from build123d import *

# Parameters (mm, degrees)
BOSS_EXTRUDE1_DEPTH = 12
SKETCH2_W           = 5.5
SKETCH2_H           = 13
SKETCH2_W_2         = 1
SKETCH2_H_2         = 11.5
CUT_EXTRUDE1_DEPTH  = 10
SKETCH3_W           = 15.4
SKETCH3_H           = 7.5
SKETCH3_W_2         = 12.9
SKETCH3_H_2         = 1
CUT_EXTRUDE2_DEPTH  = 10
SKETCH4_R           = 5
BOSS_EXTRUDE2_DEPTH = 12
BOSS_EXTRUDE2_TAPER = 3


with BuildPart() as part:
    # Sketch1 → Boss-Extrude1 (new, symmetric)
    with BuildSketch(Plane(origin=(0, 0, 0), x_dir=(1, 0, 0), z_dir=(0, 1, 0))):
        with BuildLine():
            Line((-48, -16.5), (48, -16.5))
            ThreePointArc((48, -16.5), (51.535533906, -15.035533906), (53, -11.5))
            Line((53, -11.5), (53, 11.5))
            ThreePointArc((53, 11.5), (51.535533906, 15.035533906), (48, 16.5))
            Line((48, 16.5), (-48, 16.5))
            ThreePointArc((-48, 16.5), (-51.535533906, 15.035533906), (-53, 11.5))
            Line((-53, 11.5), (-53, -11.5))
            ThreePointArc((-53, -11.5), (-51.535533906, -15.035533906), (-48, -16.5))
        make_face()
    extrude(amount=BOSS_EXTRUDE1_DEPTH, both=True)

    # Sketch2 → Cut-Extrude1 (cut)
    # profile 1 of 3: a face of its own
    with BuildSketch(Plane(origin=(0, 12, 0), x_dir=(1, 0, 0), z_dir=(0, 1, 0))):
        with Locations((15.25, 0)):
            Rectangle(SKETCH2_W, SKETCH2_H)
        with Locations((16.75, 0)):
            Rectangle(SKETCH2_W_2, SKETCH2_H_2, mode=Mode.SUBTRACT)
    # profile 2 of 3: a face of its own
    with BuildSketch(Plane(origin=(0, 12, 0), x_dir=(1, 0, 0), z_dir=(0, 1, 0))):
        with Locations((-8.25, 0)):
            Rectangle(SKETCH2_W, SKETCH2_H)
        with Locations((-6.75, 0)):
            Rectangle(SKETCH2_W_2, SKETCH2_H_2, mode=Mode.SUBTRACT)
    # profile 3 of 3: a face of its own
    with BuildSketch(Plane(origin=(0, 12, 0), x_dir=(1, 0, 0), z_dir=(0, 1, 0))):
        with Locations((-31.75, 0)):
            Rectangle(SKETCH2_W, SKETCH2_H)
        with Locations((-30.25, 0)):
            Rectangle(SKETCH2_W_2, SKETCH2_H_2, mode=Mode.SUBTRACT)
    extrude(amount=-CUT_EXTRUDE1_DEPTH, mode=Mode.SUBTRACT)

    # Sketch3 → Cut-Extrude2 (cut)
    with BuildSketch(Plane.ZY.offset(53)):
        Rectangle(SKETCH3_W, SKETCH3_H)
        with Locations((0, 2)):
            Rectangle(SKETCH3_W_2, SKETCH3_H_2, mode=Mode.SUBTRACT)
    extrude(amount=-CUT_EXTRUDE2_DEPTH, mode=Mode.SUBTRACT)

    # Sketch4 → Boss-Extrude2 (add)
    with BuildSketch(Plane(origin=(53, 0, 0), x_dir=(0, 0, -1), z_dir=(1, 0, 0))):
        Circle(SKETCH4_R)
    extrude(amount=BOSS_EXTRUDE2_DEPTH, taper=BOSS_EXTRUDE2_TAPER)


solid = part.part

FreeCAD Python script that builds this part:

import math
import FreeCAD as App
import Part
import Sketcher
Q = App.Units.Quantity


def add_polygon(sketch, points):
    """Adds a closed chain of lines whose ends are joined by coincident constraints."""
    first, n = sketch.GeometryCount, len(points)
    for a, b in zip(points, points[1:] + points[:1]):
        sketch.addGeometry(Part.LineSegment(App.Vector(*a, 0), App.Vector(*b, 0)), False)
    for i in range(n):
        sketch.addConstraint(Sketcher.Constraint("Coincident", first + i, 2, first + (i + 1) % n, 1))

doc = App.newDocument("Part")
body = doc.addObject("PartDesign::Body", "Body")

# Sketch on XZ plane
sketch1 = body.newObject("Sketcher::SketchObject", "Sketch")
sketch1.AttachmentSupport = (doc.getObject("XZ_Plane"), [""])
sketch1.MapMode = "FlatFace"
sketch1.addGeometry(Part.LineSegment(App.Vector(-48, 16.5, 0), App.Vector(48, 16.5, 0)), False)
sketch1.addGeometry(Part.ArcOfCircle(Part.Circle(App.Vector(48, 11.5, 0), App.Vector(0, 0, 1), 5), math.radians(0), math.radians(90)), False)
sketch1.addGeometry(Part.LineSegment(App.Vector(53, 11.5, 0), App.Vector(53, -11.5, 0)), False)
sketch1.addGeometry(Part.ArcOfCircle(Part.Circle(App.Vector(48, -11.5, 0), App.Vector(0, 0, 1), 5), math.radians(-90), math.radians(0)), False)
sketch1.addGeometry(Part.LineSegment(App.Vector(48, -16.5, 0), App.Vector(-48, -16.5, 0)), False)
sketch1.addGeometry(Part.ArcOfCircle(Part.Circle(App.Vector(-48, -11.5, 0), App.Vector(0, 0, 1), 5), math.radians(180), math.radians(270)), False)
sketch1.addGeometry(Part.LineSegment(App.Vector(-53, -11.5, 0), App.Vector(-53, 11.5, 0)), False)
sketch1.addGeometry(Part.ArcOfCircle(Part.Circle(App.Vector(-48, 11.5, 0), App.Vector(0, 0, 1), 5), math.radians(90), math.radians(180)), False)
sketch1.addConstraint(Sketcher.Constraint("Tangent", 0, 2, 1, 2))
sketch1.addConstraint(Sketcher.Constraint("Tangent", 1, 1, 2, 1))
sketch1.addConstraint(Sketcher.Constraint("Tangent", 2, 2, 3, 2))
sketch1.addConstraint(Sketcher.Constraint("Tangent", 3, 1, 4, 1))
sketch1.addConstraint(Sketcher.Constraint("Tangent", 4, 2, 5, 2))
sketch1.addConstraint(Sketcher.Constraint("Tangent", 5, 1, 6, 1))
sketch1.addConstraint(Sketcher.Constraint("Tangent", 6, 2, 7, 2))
sketch1.addConstraint(Sketcher.Constraint("Tangent", 7, 1, 0, 1))
sketch1.addConstraint(Sketcher.Constraint("Horizontal", 0))
sketch1.addConstraint(Sketcher.Constraint("Vertical", 2))
sketch1.addConstraint(Sketcher.Constraint("Horizontal", 4))
sketch1.addConstraint(Sketcher.Constraint("Vertical", 6))
sketch1.addConstraint(Sketcher.Constraint("Equal", 1, 3))
sketch1.addConstraint(Sketcher.Constraint("Equal", 3, 5))
sketch1.addConstraint(Sketcher.Constraint("Equal", 5, 7))
sketch1.addConstraint(Sketcher.Constraint("Symmetric", 1, 3, 5, 3, -1, 1))
sketch1.addConstraint(Sketcher.Constraint("Radius", 1, Q("5 mm")))
sketch1.addConstraint(Sketcher.Constraint("DistanceX", 0, 1, 0, 2, Q("96 mm")))
sketch1.addConstraint(Sketcher.Constraint("DistanceY", 2, 2, 2, 1, Q("23 mm")))
pad1 = body.newObject("PartDesign::Pad", "Pad")
pad1.Profile = sketch1
pad1.Length = 24
pad1.Midplane = True

# Sketch on XZ plane
sketch2 = body.newObject("Sketcher::SketchObject", "Sketch001")
sketch2.AttachmentSupport = (doc.getObject("XZ_Plane"), [""])
sketch2.MapMode = "FlatFace"
sketch2.AttachmentOffset = App.Placement(App.Vector(0, 0, -12), App.Rotation())
add_polygon(sketch2, [(12.5, -6.5), (12.5, 6.5), (18, 6.5), (18, -6.5)])  # lines 0-3
add_polygon(sketch2, [(17.25, 5.75), (16.25, 5.75), (16.25, -5.75), (17.25, -5.75)])  # lines 4-7
add_polygon(sketch2, [(-11, -6.5), (-11, 6.5), (-5.5, 6.5), (-5.5, -6.5)])  # lines 8-11
add_polygon(sketch2, [(-6.25, 5.75), (-7.25, 5.75), (-7.25, -5.75), (-6.25, -5.75)])  # lines 12-15
add_polygon(sketch2, [(-34.5, -6.5), (-34.5, 6.5), (-29, 6.5), (-29, -6.5)])  # lines 16-19
add_polygon(sketch2, [(-29.75, 5.75), (-30.75, 5.75), (-30.75, -5.75), (-29.75, -5.75)])  # lines 20-23
sketch2.addConstraint(Sketcher.Constraint("Vertical", 0))
sketch2.addConstraint(Sketcher.Constraint("Horizontal", 1))
sketch2.addConstraint(Sketcher.Constraint("Vertical", 2))
sketch2.addConstraint(Sketcher.Constraint("Horizontal", 3))
sketch2.addConstraint(Sketcher.Constraint("Horizontal", 4))
sketch2.addConstraint(Sketcher.Constraint("Vertical", 5))
sketch2.addConstraint(Sketcher.Constraint("Horizontal", 6))
sketch2.addConstraint(Sketcher.Constraint("Vertical", 7))
sketch2.addConstraint(Sketcher.Constraint("Vertical", 8))
sketch2.addConstraint(Sketcher.Constraint("Horizontal", 9))
sketch2.addConstraint(Sketcher.Constraint("Vertical", 10))
sketch2.addConstraint(Sketcher.Constraint("Horizontal", 11))
sketch2.addConstraint(Sketcher.Constraint("Horizontal", 12))
sketch2.addConstraint(Sketcher.Constraint("Vertical", 13))
sketch2.addConstraint(Sketcher.Constraint("Horizontal", 14))
sketch2.addConstraint(Sketcher.Constraint("Vertical", 15))
sketch2.addConstraint(Sketcher.Constraint("Vertical", 16))
sketch2.addConstraint(Sketcher.Constraint("Horizontal", 17))
sketch2.addConstraint(Sketcher.Constraint("Vertical", 18))
sketch2.addConstraint(Sketcher.Constraint("Horizontal", 19))
sketch2.addConstraint(Sketcher.Constraint("Horizontal", 20))
sketch2.addConstraint(Sketcher.Constraint("Vertical", 21))
sketch2.addConstraint(Sketcher.Constraint("Horizontal", 22))
sketch2.addConstraint(Sketcher.Constraint("Vertical", 23))
sketch2.addConstraint(Sketcher.Constraint("Horizontal", 1, 2, 8, 2))
sketch2.addConstraint(Sketcher.Constraint("Horizontal", 3, 2, 10, 2))
sketch2.addConstraint(Sketcher.Constraint("Horizontal", 7, 2, 12, 2))
sketch2.addConstraint(Sketcher.Constraint("Horizontal", 6, 2, 13, 2))
sketch2.addConstraint(Sketcher.Constraint("Horizontal", 9, 2, 16, 2))
sketch2.addConstraint(Sketcher.Constraint("Horizontal", 11, 2, 18, 2))
sketch2.addConstraint(Sketcher.Constraint("Horizontal", 15, 2, 20, 2))
sketch2.addConstraint(Sketcher.Constraint("Horizontal", 14, 2, 21, 2))
sketch2.addConstraint(Sketcher.Constraint("Equal", 3, 9))
sketch2.addConstraint(Sketcher.Constraint("Equal", 6, 12))
sketch2.addConstraint(Sketcher.Constraint("Equal", 11, 17))
sketch2.addConstraint(Sketcher.Constraint("Equal", 14, 20))
sketch2.addConstraint(Sketcher.Constraint("DistanceX", 4, 2, 4, 1, Q("1 mm")))
sketch2.addConstraint(Sketcher.Constraint("DistanceY", 0, 1, 0, 2, Q("13 mm")))
sketch2.addConstraint(Sketcher.Constraint("DistanceX", 1, 1, 1, 2, Q("5.5 mm")))
sketch2.addConstraint(Sketcher.Constraint("DistanceY", 5, 2, 5, 1, Q("11.5 mm")))
sketch2.addConstraint(Sketcher.Constraint("DistanceX", -1, 1, 1, 2, Q("18 mm")))
sketch2.addConstraint(Sketcher.Constraint("DistanceX", 8, 2, -1, 1, Q("11 mm")))
sketch2.addConstraint(Sketcher.Constraint("DistanceX", 17, 2, -1, 1, Q("29 mm")))
sketch2.addConstraint(Sketcher.Constraint("DistanceY", -1, 1, 0, 2, Q("6.5 mm")))
sketch2.addConstraint(Sketcher.Constraint("DistanceX", -1, 1, 4, 2, Q("16.25 mm")))
sketch2.addConstraint(Sketcher.Constraint("DistanceY", -1, 1, 4, 2, Q("5.75 mm")))
sketch2.addConstraint(Sketcher.Constraint("DistanceX", 12, 2, -1, 1, Q("7.25 mm")))
sketch2.addConstraint(Sketcher.Constraint("DistanceX", 20, 2, -1, 1, Q("30.75 mm")))
pocket1 = body.newObject("PartDesign::Pocket", "Pocket")
pocket1.Profile = sketch2
pocket1.Length = 10
pocket1.Reversed = True

# Sketch on YZ plane
sketch3 = body.newObject("Sketcher::SketchObject", "Sketch002")
sketch3.AttachmentSupport = (doc.getObject("YZ_Plane"), [""])
sketch3.MapMode = "FlatFace"
sketch3.AttachmentOffset = App.Placement(App.Vector(0, 0, -53), App.Rotation())
add_polygon(sketch3, [(3.75, -7.7), (-3.75, -7.7), (-3.75, 7.7), (3.75, 7.7)])  # lines 0-3
add_polygon(sketch3, [(1.5, 6.45), (1.5, -6.45), (2.5, -6.45), (2.5, 6.45)])  # lines 4-7
sketch3.addConstraint(Sketcher.Constraint("Horizontal", 0))
sketch3.addConstraint(Sketcher.Constraint("Vertical", 1))
sketch3.addConstraint(Sketcher.Constraint("Horizontal", 2))
sketch3.addConstraint(Sketcher.Constraint("Vertical", 3))
sketch3.addConstraint(Sketcher.Constraint("Vertical", 4))
sketch3.addConstraint(Sketcher.Constraint("Horizontal", 5))
sketch3.addConstraint(Sketcher.Constraint("Vertical", 6))
sketch3.addConstraint(Sketcher.Constraint("Horizontal", 7))
sketch3.addConstraint(Sketcher.Constraint("Symmetric", 0, 2, 2, 2, -1, 1))
sketch3.addConstraint(Sketcher.Constraint("DistanceX", 5, 1, 5, 2, Q("1 mm")))
sketch3.addConstraint(Sketcher.Constraint("DistanceX", 0, 2, 0, 1, Q("7.5 mm")))
sketch3.addConstraint(Sketcher.Constraint("DistanceY", 1, 1, 1, 2, Q("15.4 mm")))
sketch3.addConstraint(Sketcher.Constraint("DistanceY", 4, 2, 4, 1, Q("12.9 mm")))
sketch3.addConstraint(Sketcher.Constraint("DistanceX", -1, 1, 4, 2, Q("1.5 mm")))
sketch3.addConstraint(Sketcher.Constraint("DistanceY", 4, 2, -1, 1, Q("6.45 mm")))
pocket2 = body.newObject("PartDesign::Pocket", "Pocket001")
pocket2.Profile = sketch3
pocket2.Length = 10
pocket2.Reversed = True

# Sketch on YZ plane
sketch4 = body.newObject("Sketcher::SketchObject", "Sketch003")
sketch4.AttachmentSupport = (doc.getObject("YZ_Plane"), [""])
sketch4.MapMode = "FlatFace"
sketch4.AttachmentOffset = App.Placement(App.Vector(0, 0, 53), App.Rotation())
sketch4.addGeometry(Part.Circle(App.Vector(0, 0, 0), App.Vector(0, 0, 1), 5), False)
sketch4.addConstraint(Sketcher.Constraint("Coincident", 0, 3, -1, 1))
sketch4.addConstraint(Sketcher.Constraint("Diameter", 0, Q("10 mm")))
pad2 = body.newObject("PartDesign::Pad", "Pad001")
pad2.Profile = sketch4
pad2.Length = 12
pad2.TaperAngle = -3

doc.recompute()
